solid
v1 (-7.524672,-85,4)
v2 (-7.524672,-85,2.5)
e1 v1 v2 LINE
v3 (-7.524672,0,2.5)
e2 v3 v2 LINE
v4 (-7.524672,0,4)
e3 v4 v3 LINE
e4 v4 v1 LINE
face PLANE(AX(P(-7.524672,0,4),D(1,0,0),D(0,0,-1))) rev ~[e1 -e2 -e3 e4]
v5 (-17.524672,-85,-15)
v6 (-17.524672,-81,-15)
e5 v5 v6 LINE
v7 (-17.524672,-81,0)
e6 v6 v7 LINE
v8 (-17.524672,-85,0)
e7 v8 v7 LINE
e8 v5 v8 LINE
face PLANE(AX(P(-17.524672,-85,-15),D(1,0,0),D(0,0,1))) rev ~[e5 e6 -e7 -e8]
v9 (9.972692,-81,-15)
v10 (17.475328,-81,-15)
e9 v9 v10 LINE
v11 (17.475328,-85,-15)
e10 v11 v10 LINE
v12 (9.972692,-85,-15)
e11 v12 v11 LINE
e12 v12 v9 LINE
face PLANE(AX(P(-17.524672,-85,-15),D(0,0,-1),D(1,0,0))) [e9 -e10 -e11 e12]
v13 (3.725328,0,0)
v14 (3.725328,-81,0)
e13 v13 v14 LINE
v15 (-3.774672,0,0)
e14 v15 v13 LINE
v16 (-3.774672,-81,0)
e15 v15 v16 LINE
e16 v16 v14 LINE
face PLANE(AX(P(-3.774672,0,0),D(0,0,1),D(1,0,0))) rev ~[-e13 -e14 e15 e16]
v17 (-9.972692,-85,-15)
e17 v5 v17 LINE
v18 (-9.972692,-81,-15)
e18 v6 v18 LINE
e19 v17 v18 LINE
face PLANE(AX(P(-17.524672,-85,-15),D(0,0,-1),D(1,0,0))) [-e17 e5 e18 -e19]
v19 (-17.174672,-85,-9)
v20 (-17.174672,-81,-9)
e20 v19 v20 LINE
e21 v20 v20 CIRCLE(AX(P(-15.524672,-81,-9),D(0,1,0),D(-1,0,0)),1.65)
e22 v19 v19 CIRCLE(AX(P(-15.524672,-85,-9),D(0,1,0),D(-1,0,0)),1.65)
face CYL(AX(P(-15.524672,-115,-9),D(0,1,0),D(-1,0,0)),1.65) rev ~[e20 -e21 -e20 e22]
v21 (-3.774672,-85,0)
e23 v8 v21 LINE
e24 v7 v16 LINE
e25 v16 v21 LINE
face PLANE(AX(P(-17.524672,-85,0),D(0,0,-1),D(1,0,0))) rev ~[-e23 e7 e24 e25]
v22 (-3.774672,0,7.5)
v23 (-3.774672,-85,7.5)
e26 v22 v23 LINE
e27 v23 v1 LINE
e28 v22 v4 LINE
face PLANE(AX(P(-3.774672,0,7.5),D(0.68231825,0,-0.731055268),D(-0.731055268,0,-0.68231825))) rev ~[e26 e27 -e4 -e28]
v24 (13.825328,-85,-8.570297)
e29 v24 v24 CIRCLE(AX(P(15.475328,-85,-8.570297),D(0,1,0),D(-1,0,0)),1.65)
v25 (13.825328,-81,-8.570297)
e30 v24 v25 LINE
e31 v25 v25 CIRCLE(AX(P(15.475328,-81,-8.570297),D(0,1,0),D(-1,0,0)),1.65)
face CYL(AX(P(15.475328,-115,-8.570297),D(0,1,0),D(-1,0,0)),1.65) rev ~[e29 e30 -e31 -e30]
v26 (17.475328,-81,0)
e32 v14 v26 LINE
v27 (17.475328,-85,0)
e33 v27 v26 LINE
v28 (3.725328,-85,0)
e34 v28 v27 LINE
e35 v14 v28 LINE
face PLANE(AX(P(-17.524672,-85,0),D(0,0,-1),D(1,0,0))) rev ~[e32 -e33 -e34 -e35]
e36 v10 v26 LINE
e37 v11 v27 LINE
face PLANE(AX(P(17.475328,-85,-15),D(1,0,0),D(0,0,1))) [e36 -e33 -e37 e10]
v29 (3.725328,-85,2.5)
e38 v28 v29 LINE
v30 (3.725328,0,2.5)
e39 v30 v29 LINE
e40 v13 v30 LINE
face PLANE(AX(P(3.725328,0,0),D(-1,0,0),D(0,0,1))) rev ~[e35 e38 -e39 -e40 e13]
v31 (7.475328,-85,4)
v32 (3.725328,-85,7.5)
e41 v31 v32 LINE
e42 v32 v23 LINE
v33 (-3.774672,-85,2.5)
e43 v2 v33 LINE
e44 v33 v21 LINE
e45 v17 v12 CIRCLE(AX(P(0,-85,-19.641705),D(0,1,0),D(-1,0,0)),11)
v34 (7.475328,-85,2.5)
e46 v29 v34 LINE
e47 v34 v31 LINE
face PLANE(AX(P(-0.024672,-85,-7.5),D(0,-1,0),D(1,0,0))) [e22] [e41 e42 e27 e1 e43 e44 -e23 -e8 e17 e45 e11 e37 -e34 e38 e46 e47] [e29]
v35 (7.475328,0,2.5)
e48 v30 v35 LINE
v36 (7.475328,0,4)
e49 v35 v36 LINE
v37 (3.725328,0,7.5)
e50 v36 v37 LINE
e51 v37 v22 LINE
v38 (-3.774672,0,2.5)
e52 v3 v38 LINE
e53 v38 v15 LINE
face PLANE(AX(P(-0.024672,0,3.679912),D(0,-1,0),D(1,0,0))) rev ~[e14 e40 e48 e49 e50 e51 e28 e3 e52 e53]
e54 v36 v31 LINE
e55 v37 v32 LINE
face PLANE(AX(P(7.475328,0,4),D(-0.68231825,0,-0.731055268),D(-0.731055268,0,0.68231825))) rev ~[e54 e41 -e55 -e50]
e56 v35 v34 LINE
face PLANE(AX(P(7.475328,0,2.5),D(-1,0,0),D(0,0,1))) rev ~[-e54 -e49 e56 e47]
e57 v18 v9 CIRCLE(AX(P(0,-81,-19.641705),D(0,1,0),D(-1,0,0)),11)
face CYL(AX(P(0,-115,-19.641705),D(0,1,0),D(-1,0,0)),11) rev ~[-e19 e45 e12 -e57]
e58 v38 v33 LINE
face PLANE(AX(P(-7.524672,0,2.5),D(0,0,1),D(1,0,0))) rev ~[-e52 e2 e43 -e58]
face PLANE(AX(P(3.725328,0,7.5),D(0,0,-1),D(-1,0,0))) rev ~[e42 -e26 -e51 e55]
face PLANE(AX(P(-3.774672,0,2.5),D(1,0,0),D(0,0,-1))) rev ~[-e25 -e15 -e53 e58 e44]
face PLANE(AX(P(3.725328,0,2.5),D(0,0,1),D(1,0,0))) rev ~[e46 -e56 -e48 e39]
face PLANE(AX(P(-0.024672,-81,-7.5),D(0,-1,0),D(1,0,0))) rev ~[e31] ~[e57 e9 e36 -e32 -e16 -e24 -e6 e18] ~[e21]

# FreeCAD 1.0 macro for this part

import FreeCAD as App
import Part
import Sketcher

V = App.Vector
Q = App.Units.Quantity


def add_polygon(sketch, points):
    """Adds a closed chain of lines whose ends are joined by coincident constraints."""
    first, n = sketch.GeometryCount, len(points)
    for a, b in zip(points, points[1:] + points[:1]):
        sketch.addGeometry(Part.LineSegment(App.Vector(*a, 0), App.Vector(*b, 0)), False)
    for i in range(n):
        sketch.addConstraint(Sketcher.Constraint("Coincident", first + i, 2, first + (i + 1) % n, 1))

doc = App.newDocument("Part")
body = doc.addObject("PartDesign::Body", "Body")

# Sketch on XZ plane
sketch1 = body.newObject("Sketcher::SketchObject", "Sketch")
sketch1.AttachmentSupport = (doc.getObject("XZ_Plane"), [""])
sketch1.MapMode = "FlatFace"
add_polygon(sketch1, [(-3.8, 2.5), (-3.8, 0), (3.7, 0), (3.7, 2.5), (7.5, 2.5), (7.5, 4), (3.7, 7.5), (-3.8, 7.5), (-7.5, 4), (-7.5, 2.5)])  # lines 0-9
sketch1.addConstraint([
    Sketcher.Constraint("Vertical", 0),
    Sketcher.Constraint("Horizontal", 1),
    Sketcher.Constraint("Vertical", 2),
    Sketcher.Constraint("Horizontal", 3),
    Sketcher.Constraint("Vertical", 4),
    Sketcher.Constraint("Horizontal", 6),
    Sketcher.Constraint("Vertical", 8),
    Sketcher.Constraint("Horizontal", 9),
    Sketcher.Constraint("PointOnObject", 0, 2, -1),
    Sketcher.Constraint("Horizontal", 4, 2, 7, 2),
    Sketcher.Constraint("Horizontal", 3, 2, 8, 2),
    Sketcher.Constraint("Vertical", 2, 2, 5, 2),
    Sketcher.Constraint("Vertical", 0, 2, 6, 2),
    Sketcher.Constraint("Equal", 3, 9),
    Sketcher.Constraint("DistanceX", 1, 1, 1, 2, Q("7.5 mm")),
    Sketcher.Constraint("DistanceY", 0, 2, 0, 1, Q("2.5 mm")),
    Sketcher.Constraint("DistanceY", 4, 1, 4, 2, Q("1.5 mm")),
    Sketcher.Constraint("DistanceY", 2, 2, 5, 2, Q("5 mm")),
    Sketcher.Constraint("DistanceX", 3, 1, 3, 2, Q("3.75 mm")),
    Sketcher.Constraint("DistanceX", 0, 2, -1, 1, Q("3.774672 mm")),
])
pad1 = body.newObject("PartDesign::Pad", "Pad")
pad1.Profile = sketch1
pad1.Length = 85

# Sketch on XZ plane
sketch2 = body.newObject("Sketcher::SketchObject", "Sketch001")
sketch2.AttachmentSupport = (doc.getObject("XZ_Plane"), [""])
sketch2.MapMode = "FlatFace"
sketch2.AttachmentOffset = App.Placement(V(0, 0, 85), App.Rotation())
add_polygon(sketch2, [(-18, 0), (-18, -15), (17, -15), (17, 0)])  # lines 0-3
sketch2.addConstraint([
    Sketcher.Constraint("Vertical", 0),
    Sketcher.Constraint("Horizontal", 1),
    Sketcher.Constraint("Vertical", 2),
    Sketcher.Constraint("Horizontal", 3),
    Sketcher.Constraint("PointOnObject", 2, 2, -1),
    Sketcher.Constraint("DistanceX", 1, 1, 1, 2, Q("35 mm")),
    Sketcher.Constraint("DistanceY", 0, 2, 0, 1, Q("15 mm")),
    Sketcher.Constraint("DistanceX", 0, 2, -1, 1, Q("17.524672 mm")),
])
pad2 = body.newObject("PartDesign::Pad", "Pad001")
pad2.Profile = sketch2
pad2.Length = 4
pad2.Reversed = True

# Sketch on XZ plane
sketch3 = body.newObject("Sketcher::SketchObject", "Sketch002")
sketch3.AttachmentSupport = (doc.getObject("XZ_Plane"), [""])
sketch3.MapMode = "FlatFace"
sketch3.AttachmentOffset = App.Placement(V(0, 0, 85), App.Rotation())
sketch3.addGeometry([
    Part.Circle(V(-15.5, -9, 0), V(0, 0, 1), 1.6),
    Part.Circle(V(15.5, -8.6, 0), V(0, 0, 1), 1.6),
], False)
sketch3.addConstraint([
    Sketcher.Constraint("Equal", 0, 1),
    Sketcher.Constraint("Diameter", 0, Q("3.3 mm")),
    Sketcher.Constraint("DistanceY", 0, 3, -1, 1, Q("9 mm")),
    Sketcher.Constraint("DistanceX", 0, 3, 1, 3, Q("31 mm")),
    Sketcher.Constraint("DistanceX", 0, 3, -1, 1, Q("15.524672 mm")),
    Sketcher.Constraint("DistanceY", 1, 3, -1, 1, Q("8.570297 mm")),
])
doc.recompute()
hole = body.newObject("PartDesign::Hole", "Hole")
hole.Profile = sketch3
hole.ThreadType = "None"
hole.Diameter = 3.3
hole.DepthType = "Dimension"
hole.Depth = 30
hole.DrillPoint = "Angled"
hole.DrillPointAngle = 118

# Sketch on XZ plane
sketch4 = body.newObject("Sketcher::SketchObject", "Sketch003")
sketch4.AttachmentSupport = (doc.getObject("XZ_Plane"), [""])
sketch4.MapMode = "FlatFace"
sketch4.AttachmentOffset = App.Placement(V(0, 0, 85), App.Rotation())
sketch4.addGeometry(Part.Circle(V(0, -20, 0), V(0, 0, 1), 11), False)
sketch4.addConstraint([
    Sketcher.Constraint("PointOnObject", 0, 3, -2),
    Sketcher.Constraint("Diameter", 0, Q("22 mm")),
    Sketcher.Constraint("DistanceY", 0, 3, -1, 1, Q("19.641705 mm")),
])
doc.recompute()
hole2 = body.newObject("PartDesign::Hole", "Hole001")
hole2.Profile = sketch4
hole2.ThreadType = "None"
hole2.Diameter = 22
hole2.DepthType = "Dimension"
hole2.Depth = 30
hole2.DrillPoint = "Angled"
hole2.DrillPointAngle = 118

doc.recompute()
